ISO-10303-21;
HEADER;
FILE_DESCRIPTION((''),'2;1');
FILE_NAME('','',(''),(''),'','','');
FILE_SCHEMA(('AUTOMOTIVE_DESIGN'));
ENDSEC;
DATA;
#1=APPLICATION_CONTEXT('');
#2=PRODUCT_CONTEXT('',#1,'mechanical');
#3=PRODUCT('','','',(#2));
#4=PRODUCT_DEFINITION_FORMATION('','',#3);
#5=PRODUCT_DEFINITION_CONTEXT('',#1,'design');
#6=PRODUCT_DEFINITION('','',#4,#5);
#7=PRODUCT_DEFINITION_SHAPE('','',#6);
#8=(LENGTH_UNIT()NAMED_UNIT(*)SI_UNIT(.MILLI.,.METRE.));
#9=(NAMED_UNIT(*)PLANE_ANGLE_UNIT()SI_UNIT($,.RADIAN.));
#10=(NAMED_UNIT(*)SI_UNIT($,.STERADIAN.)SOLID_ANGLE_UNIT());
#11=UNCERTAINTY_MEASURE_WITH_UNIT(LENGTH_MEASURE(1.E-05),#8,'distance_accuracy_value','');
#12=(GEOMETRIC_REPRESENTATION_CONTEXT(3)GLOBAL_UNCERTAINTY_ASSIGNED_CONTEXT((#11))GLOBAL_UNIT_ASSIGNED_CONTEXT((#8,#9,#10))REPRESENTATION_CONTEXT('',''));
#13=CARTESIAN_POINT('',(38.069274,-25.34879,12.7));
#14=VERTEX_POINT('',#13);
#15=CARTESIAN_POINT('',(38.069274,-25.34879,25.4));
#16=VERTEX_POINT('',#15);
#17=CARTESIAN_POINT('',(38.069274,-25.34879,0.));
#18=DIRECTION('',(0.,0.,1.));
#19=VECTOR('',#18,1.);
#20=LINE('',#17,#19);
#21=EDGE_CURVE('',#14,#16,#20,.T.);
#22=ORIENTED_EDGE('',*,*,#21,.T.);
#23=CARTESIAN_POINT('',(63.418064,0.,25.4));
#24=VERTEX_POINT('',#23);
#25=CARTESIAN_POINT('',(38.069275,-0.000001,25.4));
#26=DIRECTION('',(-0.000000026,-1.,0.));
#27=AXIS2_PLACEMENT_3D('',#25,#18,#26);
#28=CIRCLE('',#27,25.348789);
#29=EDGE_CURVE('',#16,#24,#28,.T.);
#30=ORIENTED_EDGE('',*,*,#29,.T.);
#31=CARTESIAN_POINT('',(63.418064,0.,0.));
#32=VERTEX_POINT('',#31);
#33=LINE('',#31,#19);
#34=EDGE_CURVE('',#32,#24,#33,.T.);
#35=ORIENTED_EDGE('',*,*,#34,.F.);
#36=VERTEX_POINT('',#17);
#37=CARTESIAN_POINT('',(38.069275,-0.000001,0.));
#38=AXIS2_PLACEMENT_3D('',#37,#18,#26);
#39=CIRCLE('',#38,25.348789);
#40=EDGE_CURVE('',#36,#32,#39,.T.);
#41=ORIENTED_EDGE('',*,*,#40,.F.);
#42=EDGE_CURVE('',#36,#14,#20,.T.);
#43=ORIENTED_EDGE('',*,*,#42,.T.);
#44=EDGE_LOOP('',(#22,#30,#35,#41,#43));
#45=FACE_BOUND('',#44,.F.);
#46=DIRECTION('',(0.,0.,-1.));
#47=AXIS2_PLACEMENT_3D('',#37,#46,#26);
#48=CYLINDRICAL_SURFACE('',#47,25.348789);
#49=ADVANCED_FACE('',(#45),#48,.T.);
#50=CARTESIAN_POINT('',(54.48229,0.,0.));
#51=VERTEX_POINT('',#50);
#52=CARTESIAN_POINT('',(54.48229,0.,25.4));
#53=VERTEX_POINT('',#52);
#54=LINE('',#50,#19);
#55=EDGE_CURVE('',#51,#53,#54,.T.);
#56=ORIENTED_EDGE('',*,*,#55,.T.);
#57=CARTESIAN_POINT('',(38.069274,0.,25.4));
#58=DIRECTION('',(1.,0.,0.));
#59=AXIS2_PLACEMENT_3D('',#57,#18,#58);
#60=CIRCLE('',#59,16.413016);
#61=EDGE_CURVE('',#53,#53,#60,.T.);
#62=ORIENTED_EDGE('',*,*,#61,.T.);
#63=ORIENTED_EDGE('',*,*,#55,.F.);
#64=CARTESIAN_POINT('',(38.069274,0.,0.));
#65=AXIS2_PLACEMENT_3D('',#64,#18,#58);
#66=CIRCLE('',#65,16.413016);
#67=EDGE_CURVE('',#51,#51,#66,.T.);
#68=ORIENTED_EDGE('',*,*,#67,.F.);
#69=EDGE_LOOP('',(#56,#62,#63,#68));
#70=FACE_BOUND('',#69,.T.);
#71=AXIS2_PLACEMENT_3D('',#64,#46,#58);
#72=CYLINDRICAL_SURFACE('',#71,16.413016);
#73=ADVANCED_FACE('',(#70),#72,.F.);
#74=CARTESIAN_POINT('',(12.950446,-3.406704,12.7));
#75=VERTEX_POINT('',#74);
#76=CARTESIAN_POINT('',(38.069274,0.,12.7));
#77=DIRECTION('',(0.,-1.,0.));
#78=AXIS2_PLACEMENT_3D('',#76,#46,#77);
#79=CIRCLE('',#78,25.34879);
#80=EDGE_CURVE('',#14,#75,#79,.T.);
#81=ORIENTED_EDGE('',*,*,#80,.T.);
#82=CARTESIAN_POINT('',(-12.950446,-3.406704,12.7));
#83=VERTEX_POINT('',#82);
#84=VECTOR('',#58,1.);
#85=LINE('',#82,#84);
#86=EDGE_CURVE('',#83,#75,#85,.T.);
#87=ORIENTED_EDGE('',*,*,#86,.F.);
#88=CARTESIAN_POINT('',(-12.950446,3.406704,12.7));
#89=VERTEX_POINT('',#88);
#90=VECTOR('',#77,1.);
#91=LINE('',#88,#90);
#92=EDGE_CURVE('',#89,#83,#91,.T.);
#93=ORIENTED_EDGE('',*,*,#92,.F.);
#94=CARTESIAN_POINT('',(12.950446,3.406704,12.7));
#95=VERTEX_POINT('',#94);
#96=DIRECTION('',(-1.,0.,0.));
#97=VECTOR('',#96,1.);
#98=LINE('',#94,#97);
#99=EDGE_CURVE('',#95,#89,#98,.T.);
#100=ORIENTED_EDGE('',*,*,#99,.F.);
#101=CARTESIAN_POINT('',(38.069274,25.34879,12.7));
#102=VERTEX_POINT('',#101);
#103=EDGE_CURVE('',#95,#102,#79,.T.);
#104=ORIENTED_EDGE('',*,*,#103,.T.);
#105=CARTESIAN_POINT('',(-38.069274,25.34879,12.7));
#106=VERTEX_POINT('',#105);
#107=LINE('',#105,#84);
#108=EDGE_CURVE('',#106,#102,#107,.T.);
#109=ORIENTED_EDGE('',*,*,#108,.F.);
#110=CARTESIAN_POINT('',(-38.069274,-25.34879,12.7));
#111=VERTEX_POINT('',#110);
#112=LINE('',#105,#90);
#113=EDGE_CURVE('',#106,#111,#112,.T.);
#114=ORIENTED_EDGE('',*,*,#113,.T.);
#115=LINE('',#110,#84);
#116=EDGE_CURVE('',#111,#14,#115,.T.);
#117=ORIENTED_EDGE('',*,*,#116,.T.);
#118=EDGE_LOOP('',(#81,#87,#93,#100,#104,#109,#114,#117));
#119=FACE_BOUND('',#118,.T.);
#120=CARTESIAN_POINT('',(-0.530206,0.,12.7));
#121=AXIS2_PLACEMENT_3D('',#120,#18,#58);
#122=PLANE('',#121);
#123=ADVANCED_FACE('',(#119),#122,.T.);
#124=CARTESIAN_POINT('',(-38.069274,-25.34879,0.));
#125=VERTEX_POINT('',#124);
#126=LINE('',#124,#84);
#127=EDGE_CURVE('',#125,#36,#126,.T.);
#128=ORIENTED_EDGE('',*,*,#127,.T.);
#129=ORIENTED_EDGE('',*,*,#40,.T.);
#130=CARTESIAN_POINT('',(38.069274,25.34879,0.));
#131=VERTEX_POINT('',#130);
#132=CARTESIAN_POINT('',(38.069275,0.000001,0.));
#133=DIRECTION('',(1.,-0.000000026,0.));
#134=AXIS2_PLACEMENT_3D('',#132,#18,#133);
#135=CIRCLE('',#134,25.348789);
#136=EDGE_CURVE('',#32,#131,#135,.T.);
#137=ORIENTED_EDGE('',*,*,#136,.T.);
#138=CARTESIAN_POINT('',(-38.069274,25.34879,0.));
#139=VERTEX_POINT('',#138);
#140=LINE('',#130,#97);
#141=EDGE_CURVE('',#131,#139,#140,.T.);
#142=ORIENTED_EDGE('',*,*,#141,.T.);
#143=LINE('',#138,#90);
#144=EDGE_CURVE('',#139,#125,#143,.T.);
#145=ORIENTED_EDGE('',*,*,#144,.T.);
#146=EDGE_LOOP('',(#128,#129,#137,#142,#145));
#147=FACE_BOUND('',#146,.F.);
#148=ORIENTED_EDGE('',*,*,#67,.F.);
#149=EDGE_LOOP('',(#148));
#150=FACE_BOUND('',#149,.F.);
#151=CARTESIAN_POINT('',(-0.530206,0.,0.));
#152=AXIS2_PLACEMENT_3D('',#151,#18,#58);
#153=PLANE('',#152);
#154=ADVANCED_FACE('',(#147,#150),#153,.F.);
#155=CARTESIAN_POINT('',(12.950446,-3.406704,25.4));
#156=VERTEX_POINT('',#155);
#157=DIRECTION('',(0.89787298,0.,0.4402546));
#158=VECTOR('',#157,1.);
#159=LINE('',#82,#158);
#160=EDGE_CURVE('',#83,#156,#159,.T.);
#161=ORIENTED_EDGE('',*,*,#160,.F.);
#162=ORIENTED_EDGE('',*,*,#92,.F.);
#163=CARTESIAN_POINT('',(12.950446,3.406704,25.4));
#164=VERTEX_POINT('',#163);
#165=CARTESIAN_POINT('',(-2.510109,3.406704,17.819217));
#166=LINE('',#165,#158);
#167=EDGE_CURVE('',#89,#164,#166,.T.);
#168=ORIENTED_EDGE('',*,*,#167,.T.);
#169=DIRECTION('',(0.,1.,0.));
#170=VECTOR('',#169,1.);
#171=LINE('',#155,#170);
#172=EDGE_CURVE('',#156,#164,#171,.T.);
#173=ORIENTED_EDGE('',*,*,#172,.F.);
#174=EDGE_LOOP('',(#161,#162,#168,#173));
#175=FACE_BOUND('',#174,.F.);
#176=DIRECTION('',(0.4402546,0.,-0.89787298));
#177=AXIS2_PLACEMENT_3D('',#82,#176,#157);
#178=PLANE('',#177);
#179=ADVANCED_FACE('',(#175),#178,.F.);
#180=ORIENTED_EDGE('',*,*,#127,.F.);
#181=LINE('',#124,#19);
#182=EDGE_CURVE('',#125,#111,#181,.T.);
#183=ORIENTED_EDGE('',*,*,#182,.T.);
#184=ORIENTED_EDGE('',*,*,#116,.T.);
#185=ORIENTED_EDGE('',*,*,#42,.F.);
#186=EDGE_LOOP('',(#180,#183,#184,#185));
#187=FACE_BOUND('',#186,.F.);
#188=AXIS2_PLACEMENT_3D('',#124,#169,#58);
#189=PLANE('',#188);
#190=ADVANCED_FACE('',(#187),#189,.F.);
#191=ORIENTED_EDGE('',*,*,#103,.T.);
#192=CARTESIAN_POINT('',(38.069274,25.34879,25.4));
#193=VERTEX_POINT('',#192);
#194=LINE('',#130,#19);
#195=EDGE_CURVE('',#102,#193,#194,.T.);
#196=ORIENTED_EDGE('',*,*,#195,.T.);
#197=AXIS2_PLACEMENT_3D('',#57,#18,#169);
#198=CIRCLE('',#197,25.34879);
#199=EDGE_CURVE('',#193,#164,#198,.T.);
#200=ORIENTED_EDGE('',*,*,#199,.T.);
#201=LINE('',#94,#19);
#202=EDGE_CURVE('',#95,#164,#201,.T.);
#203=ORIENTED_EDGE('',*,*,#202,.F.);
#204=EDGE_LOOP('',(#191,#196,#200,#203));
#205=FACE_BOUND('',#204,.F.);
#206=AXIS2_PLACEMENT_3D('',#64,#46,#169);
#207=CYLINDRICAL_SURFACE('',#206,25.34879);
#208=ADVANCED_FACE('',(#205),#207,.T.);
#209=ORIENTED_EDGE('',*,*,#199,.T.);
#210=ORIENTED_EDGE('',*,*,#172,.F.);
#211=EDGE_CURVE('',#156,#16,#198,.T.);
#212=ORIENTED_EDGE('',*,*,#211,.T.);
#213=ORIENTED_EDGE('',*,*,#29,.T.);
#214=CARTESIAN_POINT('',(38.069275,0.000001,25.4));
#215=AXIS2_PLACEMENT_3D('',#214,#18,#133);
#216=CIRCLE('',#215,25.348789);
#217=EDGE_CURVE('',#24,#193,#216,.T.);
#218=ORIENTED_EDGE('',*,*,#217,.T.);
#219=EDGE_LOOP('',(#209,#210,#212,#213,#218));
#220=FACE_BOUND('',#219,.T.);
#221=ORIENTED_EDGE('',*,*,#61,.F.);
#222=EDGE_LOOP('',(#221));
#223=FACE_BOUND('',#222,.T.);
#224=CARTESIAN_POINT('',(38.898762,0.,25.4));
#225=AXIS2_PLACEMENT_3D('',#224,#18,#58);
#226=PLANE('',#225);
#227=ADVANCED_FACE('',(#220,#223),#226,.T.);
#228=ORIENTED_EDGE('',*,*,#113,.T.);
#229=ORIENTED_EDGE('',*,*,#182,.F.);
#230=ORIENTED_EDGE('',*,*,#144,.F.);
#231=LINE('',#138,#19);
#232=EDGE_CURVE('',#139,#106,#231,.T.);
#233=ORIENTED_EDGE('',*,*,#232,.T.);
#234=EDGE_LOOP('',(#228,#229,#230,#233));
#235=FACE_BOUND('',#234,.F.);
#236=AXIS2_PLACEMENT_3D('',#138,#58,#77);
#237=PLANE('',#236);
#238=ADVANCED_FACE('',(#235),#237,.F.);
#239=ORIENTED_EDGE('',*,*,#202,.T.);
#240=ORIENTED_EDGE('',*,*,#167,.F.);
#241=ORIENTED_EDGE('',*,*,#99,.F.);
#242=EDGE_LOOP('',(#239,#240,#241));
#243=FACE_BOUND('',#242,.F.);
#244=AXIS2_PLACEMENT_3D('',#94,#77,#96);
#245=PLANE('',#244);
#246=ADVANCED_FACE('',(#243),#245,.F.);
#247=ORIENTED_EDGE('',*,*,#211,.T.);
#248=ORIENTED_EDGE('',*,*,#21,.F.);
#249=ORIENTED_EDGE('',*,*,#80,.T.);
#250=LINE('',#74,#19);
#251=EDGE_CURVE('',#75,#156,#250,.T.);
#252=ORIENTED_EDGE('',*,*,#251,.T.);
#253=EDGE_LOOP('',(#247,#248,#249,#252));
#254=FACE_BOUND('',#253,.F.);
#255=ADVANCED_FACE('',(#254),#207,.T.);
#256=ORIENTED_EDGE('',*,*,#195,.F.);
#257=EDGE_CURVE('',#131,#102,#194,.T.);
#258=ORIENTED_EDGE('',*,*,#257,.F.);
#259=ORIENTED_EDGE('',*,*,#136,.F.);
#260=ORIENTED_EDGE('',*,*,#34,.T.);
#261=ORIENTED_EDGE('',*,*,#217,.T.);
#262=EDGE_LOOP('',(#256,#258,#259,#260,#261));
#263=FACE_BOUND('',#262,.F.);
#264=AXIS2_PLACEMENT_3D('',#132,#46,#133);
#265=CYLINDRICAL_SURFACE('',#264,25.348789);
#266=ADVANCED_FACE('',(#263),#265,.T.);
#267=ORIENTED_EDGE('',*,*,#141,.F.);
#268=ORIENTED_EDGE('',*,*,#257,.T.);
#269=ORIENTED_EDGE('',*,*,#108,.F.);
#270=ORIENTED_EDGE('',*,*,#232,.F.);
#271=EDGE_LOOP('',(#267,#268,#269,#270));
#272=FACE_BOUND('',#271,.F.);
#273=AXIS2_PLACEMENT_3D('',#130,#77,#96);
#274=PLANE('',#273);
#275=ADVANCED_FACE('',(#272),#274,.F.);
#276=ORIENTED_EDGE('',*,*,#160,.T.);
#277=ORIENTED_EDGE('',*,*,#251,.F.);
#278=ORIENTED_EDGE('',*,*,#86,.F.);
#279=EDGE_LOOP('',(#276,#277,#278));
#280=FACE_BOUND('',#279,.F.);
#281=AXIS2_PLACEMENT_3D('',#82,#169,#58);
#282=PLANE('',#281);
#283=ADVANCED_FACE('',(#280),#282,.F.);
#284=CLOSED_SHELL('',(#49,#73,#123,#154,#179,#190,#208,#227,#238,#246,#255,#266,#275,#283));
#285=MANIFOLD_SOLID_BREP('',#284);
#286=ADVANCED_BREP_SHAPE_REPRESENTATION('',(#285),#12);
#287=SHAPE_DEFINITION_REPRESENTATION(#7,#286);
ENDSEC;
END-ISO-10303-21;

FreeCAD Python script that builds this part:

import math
import FreeCAD as App
import Part
import Sketcher
Q = App.Units.Quantity

doc = App.newDocument("Part")
params = doc.addObject("Spreadsheet::Sheet", "Params")
for row, (alias, value) in enumerate([
    ("pad1_length", "1 in"),
    ("pad2_length", "0.5 in"),
    ("pad3_length", "0.5 in"),
    ("sketch4_height", "0.5 in"),
    ("pocket1_length", "20 in"),
], start=1):
    params.set(f"A{row}", alias)
    params.set(f"B{row}", "=" + value)
    params.setAlias(f"B{row}", alias)

body = doc.addObject("PartDesign::Body", "Body")

# Sketch on XY plane
sketch1 = doc.addObject("Sketcher::SketchObject", "Sketch")
body.addObject(sketch1)
sketch1.AttachmentSupport = (doc.XY_Plane, [""])
sketch1.MapMode = "FlatFace"
sketch1.addGeometry(Part.ArcOfCircle(Part.Circle(App.Vector(38, 0, 0), App.Vector(0, 0, 1), 25), math.radians(90), math.radians(270)), False)
sketch1.addGeometry(Part.ArcOfCircle(Part.Circle(App.Vector(38, 0, 0), App.Vector(0, 0, 1), 25), math.radians(-90), math.radians(0)), False)
sketch1.addGeometry(Part.ArcOfCircle(Part.Circle(App.Vector(38, 0, 0), App.Vector(0, 0, 1), 25), math.radians(0), math.radians(90)), False)
sketch1.addGeometry(Part.Circle(App.Vector(38, 0, 0), App.Vector(0, 0, 1), 16), False)
sketch1.addConstraint(Sketcher.Constraint("Tangent", 0, 2, 1, 1))
sketch1.addConstraint(Sketcher.Constraint("Tangent", 1, 2, 2, 1))
sketch1.addConstraint(Sketcher.Constraint("Tangent", 2, 2, 0, 1))
sketch1.addConstraint(Sketcher.Constraint("Coincident", 3, 3, 0, 3))
sketch1.addConstraint(Sketcher.Constraint("Symmetric", 0, 2, 2, 2, -1))
sketch1.addConstraint(Sketcher.Constraint("PointOnObject", 1, 2, -1))
sketch1.addConstraint(Sketcher.Constraint("Vertical", 3, 3, 0, 2))
sketch1.addConstraint(Sketcher.Constraint("Diameter", 3, Q("32.826032 mm")))
sketch1.addConstraint(Sketcher.Constraint("Radius", 0, Q("25.34879 mm")))
sketch1.addConstraint(Sketcher.Constraint("DistanceX", -1, 1, 0, 3, Q("38.069274 mm")))
pad1 = doc.addObject("PartDesign::Pad", "Pad")
body.addObject(pad1)
pad1.Profile = sketch1
pad1.setExpression("Length", "Params.pad1_length")

# Sketch on XY plane
sketch2 = doc.addObject("Sketcher::SketchObject", "Sketch001")
body.addObject(sketch2)
sketch2.AttachmentSupport = (doc.XY_Plane, [""])
sketch2.MapMode = "FlatFace"
sketch2.addGeometry(Part.LineSegment(App.Vector(-38, 25, 0), App.Vector(-38, -25, 0)), False)
sketch2.addGeometry(Part.LineSegment(App.Vector(-38, -25, 0), App.Vector(38, -25, 0)), False)
sketch2.addGeometry(Part.ArcOfCircle(Part.Circle(App.Vector(38, 0, 0), App.Vector(0, 0, 1), 25), math.radians(90), math.radians(270)), False)
sketch2.addGeometry(Part.LineSegment(App.Vector(38, 25, 0), App.Vector(-38, 25, 0)), False)
sketch2.addConstraint(Sketcher.Constraint("Coincident", 0, 2, 1, 1))
sketch2.addConstraint(Sketcher.Constraint("Tangent", 1, 2, 2, 2))
sketch2.addConstraint(Sketcher.Constraint("Tangent", 2, 1, 3, 1))
sketch2.addConstraint(Sketcher.Constraint("Coincident", 3, 2, 0, 1))
sketch2.addConstraint(Sketcher.Constraint("Vertical", 0))
sketch2.addConstraint(Sketcher.Constraint("Horizontal", 1))
sketch2.addConstraint(Sketcher.Constraint("Horizontal", 3))
sketch2.addConstraint(Sketcher.Constraint("Symmetric", 0, 2, 2, 1, -1, 1))
sketch2.addConstraint(Sketcher.Constraint("Radius", 2, Q("25.34879 mm")))
sketch2.addConstraint(Sketcher.Constraint("DistanceX", 1, 1, 1, 2, Q("76.138548 mm")))
pad2 = doc.addObject("PartDesign::Pad", "Pad001")
body.addObject(pad2)
pad2.Profile = sketch2
pad2.setExpression("Length", "Params.pad2_length")

# Sketch on XY plane
sketch3 = doc.addObject("Sketcher::SketchObject", "Sketch002")
body.addObject(sketch3)
sketch3.AttachmentSupport = (doc.XY_Plane, [""])
sketch3.MapMode = "FlatFace"
sketch3.AttachmentOffset = App.Placement(App.Vector(0, 0, 0.5 * 25.4), App.Rotation())
sketch3.addGeometry(Part.ArcOfCircle(Part.Circle(App.Vector(38, 0, 0), App.Vector(0, 0, 1), 25), math.radians(172.28), math.radians(187.72)), False)
sketch3.addGeometry(Part.LineSegment(App.Vector(13, 3, 0), App.Vector(-13, 3, 0)), False)
sketch3.addGeometry(Part.LineSegment(App.Vector(-13, 3, 0), App.Vector(-13, -3, 0)), False)
sketch3.addGeometry(Part.LineSegment(App.Vector(-13, -3, 0), App.Vector(13, -3, 0)), False)
sketch3.addConstraint(Sketcher.Constraint("Coincident", 0, 1, 1, 1))
sketch3.addConstraint(Sketcher.Constraint("Coincident", 1, 2, 2, 1))
sketch3.addConstraint(Sketcher.Constraint("Coincident", 2, 2, 3, 1))
sketch3.addConstraint(Sketcher.Constraint("Coincident", 3, 2, 0, 2))
sketch3.addConstraint(Sketcher.Constraint("Horizontal", 1))
sketch3.addConstraint(Sketcher.Constraint("Vertical", 2))
sketch3.addConstraint(Sketcher.Constraint("Horizontal", 3))
sketch3.addConstraint(Sketcher.Constraint("Symmetric", 0, 1, 2, 2, -1, 1))
sketch3.addConstraint(Sketcher.Constraint("PointOnObject", 0, 3, -1))
sketch3.addConstraint(Sketcher.Constraint("Radius", 0, Q("25.348785 mm")))
sketch3.addConstraint(Sketcher.Constraint("DistanceX", 1, 2, 1, 1, Q("25.900892 mm")))
sketch3.addConstraint(Sketcher.Constraint("DistanceY", 2, 2, 2, 1, Q("6.813408 mm")))
pad3 = doc.addObject("PartDesign::Pad", "Pad002")
body.addObject(pad3)
pad3.Profile = sketch3
pad3.setExpression("Length", "Params.pad3_length")

# Sketch on XZ plane
sketch4 = doc.addObject("Sketcher::SketchObject", "Sketch003")
body.addObject(sketch4)
sketch4.AttachmentSupport = (doc.XZ_Plane, [""])
sketch4.MapMode = "FlatFace"
sketch4.AttachmentOffset = App.Placement(App.Vector(0, 0, 3.406704), App.Rotation())
sketch4.addGeometry(Part.LineSegment(App.Vector(-13, 25, 0), App.Vector(-13, 13, 0)), False)
sketch4.addGeometry(Part.LineSegment(App.Vector(-13, 13, 0), App.Vector(13, 25, 0)), False)
sketch4.addGeometry(Part.LineSegment(App.Vector(13, 25, 0), App.Vector(-13, 25, 0)), False)
sketch4.addConstraint(Sketcher.Constraint("Coincident", 0, 2, 1, 1))
sketch4.addConstraint(Sketcher.Constraint("Coincident", 1, 2, 2, 1))
sketch4.addConstraint(Sketcher.Constraint("Coincident", 2, 2, 0, 1))
sketch4.addConstraint(Sketcher.Constraint("Vertical", 0))
sketch4.addConstraint(Sketcher.Constraint("Horizontal", 2))
sketch4.addConstraint(Sketcher.Constraint("DistanceY", 0, 2, 0, 1, Q("0.5 in")))
sketch4.addConstraint(Sketcher.Constraint("DistanceY", -1, 1, 1, 2, Q("1 in")))
sketch4.addConstraint(Sketcher.Constraint("DistanceX", 2, 2, 2, 1, Q("25.900892 mm")))
sketch4.addConstraint(Sketcher.Constraint("DistanceX", 0, 2, -1, 1, Q("12.950446 mm")))
sketch4.setExpression("Constraints[5]", "Params.sketch4_height")
pocket1 = doc.addObject("PartDesign::Pocket", "Pocket")
body.addObject(pocket1)
pocket1.Profile = sketch4
pocket1.setExpression("Length", "Params.pocket1_length")

doc.recompute()
